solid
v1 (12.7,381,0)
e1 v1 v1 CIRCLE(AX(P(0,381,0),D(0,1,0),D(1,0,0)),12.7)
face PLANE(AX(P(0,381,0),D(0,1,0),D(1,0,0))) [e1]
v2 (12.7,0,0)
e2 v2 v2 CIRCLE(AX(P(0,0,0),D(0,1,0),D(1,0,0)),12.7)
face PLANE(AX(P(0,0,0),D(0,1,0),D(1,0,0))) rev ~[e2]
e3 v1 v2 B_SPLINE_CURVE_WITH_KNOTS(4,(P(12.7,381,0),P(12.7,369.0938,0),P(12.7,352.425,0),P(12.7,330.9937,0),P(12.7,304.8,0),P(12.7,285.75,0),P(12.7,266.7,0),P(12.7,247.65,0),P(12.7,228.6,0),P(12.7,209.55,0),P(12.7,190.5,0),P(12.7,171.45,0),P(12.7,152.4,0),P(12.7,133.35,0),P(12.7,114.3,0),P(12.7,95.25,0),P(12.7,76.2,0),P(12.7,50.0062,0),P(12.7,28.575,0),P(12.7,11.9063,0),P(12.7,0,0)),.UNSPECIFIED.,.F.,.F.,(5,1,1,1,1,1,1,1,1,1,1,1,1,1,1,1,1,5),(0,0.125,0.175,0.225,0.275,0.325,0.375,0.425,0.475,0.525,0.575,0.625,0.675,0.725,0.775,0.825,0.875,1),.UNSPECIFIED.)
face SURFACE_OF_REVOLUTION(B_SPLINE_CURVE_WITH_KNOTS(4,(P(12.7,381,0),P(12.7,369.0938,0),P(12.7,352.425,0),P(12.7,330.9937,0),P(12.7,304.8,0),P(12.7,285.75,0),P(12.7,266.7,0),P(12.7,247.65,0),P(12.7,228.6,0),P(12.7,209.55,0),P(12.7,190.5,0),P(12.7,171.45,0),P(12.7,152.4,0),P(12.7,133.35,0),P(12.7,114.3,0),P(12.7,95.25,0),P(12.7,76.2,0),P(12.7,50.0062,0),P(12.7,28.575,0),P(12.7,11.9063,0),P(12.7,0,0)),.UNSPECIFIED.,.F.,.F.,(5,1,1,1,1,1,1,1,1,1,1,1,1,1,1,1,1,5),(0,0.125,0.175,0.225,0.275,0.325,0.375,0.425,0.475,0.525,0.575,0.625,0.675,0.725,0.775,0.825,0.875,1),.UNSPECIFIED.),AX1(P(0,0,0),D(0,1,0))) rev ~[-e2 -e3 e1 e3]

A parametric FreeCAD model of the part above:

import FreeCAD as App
import Part
import Sketcher

V = App.Vector

doc = App.newDocument("Part")
body = doc.addObject("PartDesign::Body", "Body")

sketch1 = body.newObject("Sketcher::SketchObject", "Sketch")
sketch1.AttachmentSupport = (doc.getObject("XY_Plane"), [""])
sketch1.MapMode = "FlatFace"
sketch1.addGeometry([
    Part.BSplineCurve([V(12.7, 381, 0), V(12.7, 369.0938, 0), V(12.7, 352.425, 0), V(12.7, 330.9937, 0), V(12.7, 304.8, 0), V(12.7, 285.75, 0), V(12.7, 266.7, 0), V(12.7, 247.65, 0), V(12.7, 228.6, 0), V(12.7, 209.55, 0), V(12.7, 190.5, 0), V(12.7, 171.45, 0), V(12.7, 152.4, 0), V(12.7, 133.35, 0), V(12.7, 114.3, 0), V(12.7, 95.25, 0), V(12.7, 76.2, 0), V(12.7, 50.0062, 0), V(12.7, 28.575, 0), V(12.7, 11.9063, 0), V(12.7, 0, 0)], [5, 1, 1, 1, 1, 1, 1, 1, 1, 1, 1, 1, 1, 1, 1, 1, 1, 5], [0, 0.125, 0.175, 0.225, 0.275, 0.325, 0.375, 0.425, 0.475, 0.525, 0.575, 0.625, 0.675, 0.725, 0.775, 0.825, 0.875, 1], False, 4, [1, 1, 1, 1, 1, 1, 1, 1, 1, 1, 1, 1, 1, 1, 1, 1, 1, 1, 1, 1, 1], False),
    Part.LineSegment(V(12.7, 381, 0), V(0, 381, 0)),
    Part.LineSegment(V(0, 381, 0), V(0, 0, 0)),
    Part.LineSegment(V(0, 0, 0), V(12.7, 0, 0)),
], False)
sketch1.addConstraint([
    Sketcher.Constraint("Block", 0),
    Sketcher.Constraint("Coincident", 0, 1, 1, 1),
    Sketcher.Constraint("Coincident", 1, 2, 2, 1),
    Sketcher.Constraint("Coincident", 2, 2, 3, 1),
    Sketcher.Constraint("Coincident", 3, 2, 0, 2),
    Sketcher.Constraint("Horizontal", 1),
    Sketcher.Constraint("Vertical", 2),
    Sketcher.Constraint("Horizontal", 3),
    Sketcher.Constraint("PointOnObject", 1, 2, -2),
])
revolution = body.newObject("PartDesign::Revolution", "Revolution")
revolution.Profile = sketch1
revolution.ReferenceAxis = (sketch1, ["V_Axis"])
revolution.Angle = 360

doc.recompute()
